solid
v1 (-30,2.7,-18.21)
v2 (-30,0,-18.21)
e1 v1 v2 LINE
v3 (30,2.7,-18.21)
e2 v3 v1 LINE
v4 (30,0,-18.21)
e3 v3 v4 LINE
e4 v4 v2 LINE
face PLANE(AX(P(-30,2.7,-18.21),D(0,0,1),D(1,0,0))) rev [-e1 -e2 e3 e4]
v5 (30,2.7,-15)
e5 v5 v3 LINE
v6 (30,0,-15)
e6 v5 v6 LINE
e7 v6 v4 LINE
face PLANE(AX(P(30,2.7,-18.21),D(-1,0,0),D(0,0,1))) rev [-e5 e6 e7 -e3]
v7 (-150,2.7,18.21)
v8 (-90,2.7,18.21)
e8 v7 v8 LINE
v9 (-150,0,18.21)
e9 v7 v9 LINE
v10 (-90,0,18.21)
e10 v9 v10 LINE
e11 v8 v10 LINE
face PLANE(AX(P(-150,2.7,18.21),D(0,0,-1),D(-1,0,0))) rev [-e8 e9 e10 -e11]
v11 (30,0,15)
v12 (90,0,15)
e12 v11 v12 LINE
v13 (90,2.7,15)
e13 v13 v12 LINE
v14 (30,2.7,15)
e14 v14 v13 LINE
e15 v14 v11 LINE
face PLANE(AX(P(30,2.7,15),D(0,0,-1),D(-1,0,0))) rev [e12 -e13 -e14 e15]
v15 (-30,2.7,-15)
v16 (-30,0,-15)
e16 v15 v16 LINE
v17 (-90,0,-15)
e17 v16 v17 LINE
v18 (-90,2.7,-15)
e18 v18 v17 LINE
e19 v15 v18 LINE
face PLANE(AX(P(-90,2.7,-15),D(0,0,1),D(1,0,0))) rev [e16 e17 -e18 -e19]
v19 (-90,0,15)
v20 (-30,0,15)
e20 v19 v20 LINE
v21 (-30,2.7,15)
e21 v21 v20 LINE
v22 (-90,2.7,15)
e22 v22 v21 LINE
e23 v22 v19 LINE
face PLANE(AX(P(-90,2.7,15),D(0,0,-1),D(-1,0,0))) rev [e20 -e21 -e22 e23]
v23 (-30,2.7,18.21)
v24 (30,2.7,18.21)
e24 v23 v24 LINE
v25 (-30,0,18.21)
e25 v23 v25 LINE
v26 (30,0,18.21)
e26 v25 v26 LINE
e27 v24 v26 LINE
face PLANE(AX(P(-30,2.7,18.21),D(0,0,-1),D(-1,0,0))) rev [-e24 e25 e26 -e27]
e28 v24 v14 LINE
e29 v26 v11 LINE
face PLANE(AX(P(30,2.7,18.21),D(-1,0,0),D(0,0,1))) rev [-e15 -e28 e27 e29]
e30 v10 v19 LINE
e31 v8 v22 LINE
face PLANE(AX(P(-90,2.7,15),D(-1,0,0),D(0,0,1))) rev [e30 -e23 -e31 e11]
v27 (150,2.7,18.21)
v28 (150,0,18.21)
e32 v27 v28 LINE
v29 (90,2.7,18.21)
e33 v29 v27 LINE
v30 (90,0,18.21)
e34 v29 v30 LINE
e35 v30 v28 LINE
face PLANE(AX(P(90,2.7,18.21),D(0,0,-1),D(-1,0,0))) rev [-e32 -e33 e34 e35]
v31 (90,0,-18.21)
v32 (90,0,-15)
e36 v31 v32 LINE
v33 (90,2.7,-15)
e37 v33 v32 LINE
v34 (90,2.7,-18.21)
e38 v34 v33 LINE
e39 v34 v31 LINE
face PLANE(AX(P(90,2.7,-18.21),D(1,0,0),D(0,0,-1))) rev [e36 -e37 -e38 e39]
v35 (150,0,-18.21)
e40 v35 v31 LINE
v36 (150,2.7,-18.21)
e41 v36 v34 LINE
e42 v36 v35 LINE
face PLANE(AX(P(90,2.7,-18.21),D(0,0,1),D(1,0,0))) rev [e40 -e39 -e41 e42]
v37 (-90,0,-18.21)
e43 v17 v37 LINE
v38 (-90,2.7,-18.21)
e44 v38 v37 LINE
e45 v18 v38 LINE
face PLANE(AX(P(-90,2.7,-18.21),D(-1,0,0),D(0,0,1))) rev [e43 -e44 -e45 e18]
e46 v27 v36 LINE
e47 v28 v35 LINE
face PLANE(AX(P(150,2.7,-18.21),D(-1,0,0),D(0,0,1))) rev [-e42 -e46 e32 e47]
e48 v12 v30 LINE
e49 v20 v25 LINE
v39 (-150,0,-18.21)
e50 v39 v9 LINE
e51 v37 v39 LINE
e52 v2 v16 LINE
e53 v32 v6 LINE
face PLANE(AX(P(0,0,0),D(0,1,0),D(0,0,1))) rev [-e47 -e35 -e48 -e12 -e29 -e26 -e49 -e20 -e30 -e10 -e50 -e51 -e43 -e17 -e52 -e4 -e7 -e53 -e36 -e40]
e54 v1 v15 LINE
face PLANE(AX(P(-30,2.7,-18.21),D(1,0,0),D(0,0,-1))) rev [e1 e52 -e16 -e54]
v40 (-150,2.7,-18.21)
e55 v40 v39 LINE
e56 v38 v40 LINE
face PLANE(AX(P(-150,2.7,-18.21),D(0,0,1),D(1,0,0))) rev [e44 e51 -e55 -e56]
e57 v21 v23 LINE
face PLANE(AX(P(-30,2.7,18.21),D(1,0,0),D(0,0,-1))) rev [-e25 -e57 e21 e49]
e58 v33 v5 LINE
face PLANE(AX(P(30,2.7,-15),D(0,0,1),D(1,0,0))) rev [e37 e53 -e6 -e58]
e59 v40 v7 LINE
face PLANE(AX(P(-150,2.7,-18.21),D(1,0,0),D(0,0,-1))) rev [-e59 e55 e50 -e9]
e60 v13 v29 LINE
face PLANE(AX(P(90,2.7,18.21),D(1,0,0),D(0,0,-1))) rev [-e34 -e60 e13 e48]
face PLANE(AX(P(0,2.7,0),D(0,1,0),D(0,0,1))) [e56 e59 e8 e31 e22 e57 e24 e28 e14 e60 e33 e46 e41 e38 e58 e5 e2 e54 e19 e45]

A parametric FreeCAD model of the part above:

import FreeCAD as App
import Part
import Sketcher

V = App.Vector


def add_polygon(sketch, points):
    """Adds a closed chain of lines whose ends are joined by coincident constraints."""
    first, n = sketch.GeometryCount, len(points)
    for a, b in zip(points, points[1:] + points[:1]):
        sketch.addGeometry(Part.LineSegment(App.Vector(*a, 0), App.Vector(*b, 0)), False)
    for i in range(n):
        sketch.addConstraint(Sketcher.Constraint("Coincident", first + i, 2, first + (i + 1) % n, 1))

doc = App.newDocument("Part")
body = doc.addObject("PartDesign::Body", "Body")

# Sketch on XZ plane
sketch1 = body.newObject("Sketcher::SketchObject", "Sketch")
sketch1.AttachmentSupport = (doc.getObject("XZ_Plane"), [""])
sketch1.MapMode = "FlatFace"
add_polygon(sketch1, [(90, -15), (30, -15), (30, -18.2), (-30, -18.2), (-30, -15), (-90, -15), (-90, -18.2), (-150, -18.2), (-150, 18.2), (-90, 18.2), (-90, 15), (-30, 15), (-30, 18.2), (30, 18.2), (30, 15), (90, 15), (90, 18.2), (150, 18.2), (150, -18.2), (90, -18.2)])  # lines 0-19
sketch1.addConstraint(Sketcher.Constraint("Horizontal", 0))
sketch1.addConstraint(Sketcher.Constraint("Vertical", 1))
sketch1.addConstraint(Sketcher.Constraint("Horizontal", 2))
sketch1.addConstraint(Sketcher.Constraint("Vertical", 3))
sketch1.addConstraint(Sketcher.Constraint("Horizontal", 4))
sketch1.addConstraint(Sketcher.Constraint("Vertical", 5))
sketch1.addConstraint(Sketcher.Constraint("Horizontal", 6))
sketch1.addConstraint(Sketcher.Constraint("Vertical", 7))
sketch1.addConstraint(Sketcher.Constraint("Horizontal", 8))
sketch1.addConstraint(Sketcher.Constraint("Vertical", 9))
sketch1.addConstraint(Sketcher.Constraint("Horizontal", 10))
sketch1.addConstraint(Sketcher.Constraint("Vertical", 11))
sketch1.addConstraint(Sketcher.Constraint("Horizontal", 12))
sketch1.addConstraint(Sketcher.Constraint("Vertical", 13))
sketch1.addConstraint(Sketcher.Constraint("Horizontal", 14))
sketch1.addConstraint(Sketcher.Constraint("Vertical", 15))
sketch1.addConstraint(Sketcher.Constraint("Horizontal", 16))
sketch1.addConstraint(Sketcher.Constraint("Vertical", 17))
sketch1.addConstraint(Sketcher.Constraint("Horizontal", 18))
sketch1.addConstraint(Sketcher.Constraint("Vertical", 19))
sketch1.addConstraint(Sketcher.Constraint("Symmetric", 0, 2, 10, 2, -1, 1))
sketch1.addConstraint(Sketcher.Constraint("Symmetric", 2, 2, 12, 2, -1, 1))
sketch1.addConstraint(Sketcher.Constraint("Symmetric", 4, 2, 14, 2, -1, 1))
sketch1.addConstraint(Sketcher.Constraint("Symmetric", 6, 2, 16, 2, -1, 1))
sketch1.addConstraint(Sketcher.Constraint("Symmetric", 8, 2, 18, 2, -1, 1))
sketch1.addConstraint(Sketcher.Constraint("Symmetric", 0, 2, 3, 2, -2))
sketch1.addConstraint(Sketcher.Constraint("Symmetric", 8, 2, 15, 2, -2))
sketch1.addConstraint(Sketcher.Constraint("Horizontal", 2, 2, 5, 2))
sketch1.addConstraint(Sketcher.Constraint("Equal", 0, 2))
sketch1.addConstraint(Sketcher.Constraint("Equal", 4, 6))
sketch1.addConstraint(Sketcher.Constraint("DistanceX", 0, 2, 0, 1, 60.0))
sketch1.addConstraint(Sketcher.Constraint("DistanceY", 0, 2, -1, 1, 15.0))
sketch1.addConstraint(Sketcher.Constraint("DistanceY", 1, 2, 1, 1, 3.21))
pad1 = body.newObject("PartDesign::Pad", "Pad")
pad1.Profile = sketch1
pad1.Length = 2.7
pad1.Reversed = True

doc.recompute()
